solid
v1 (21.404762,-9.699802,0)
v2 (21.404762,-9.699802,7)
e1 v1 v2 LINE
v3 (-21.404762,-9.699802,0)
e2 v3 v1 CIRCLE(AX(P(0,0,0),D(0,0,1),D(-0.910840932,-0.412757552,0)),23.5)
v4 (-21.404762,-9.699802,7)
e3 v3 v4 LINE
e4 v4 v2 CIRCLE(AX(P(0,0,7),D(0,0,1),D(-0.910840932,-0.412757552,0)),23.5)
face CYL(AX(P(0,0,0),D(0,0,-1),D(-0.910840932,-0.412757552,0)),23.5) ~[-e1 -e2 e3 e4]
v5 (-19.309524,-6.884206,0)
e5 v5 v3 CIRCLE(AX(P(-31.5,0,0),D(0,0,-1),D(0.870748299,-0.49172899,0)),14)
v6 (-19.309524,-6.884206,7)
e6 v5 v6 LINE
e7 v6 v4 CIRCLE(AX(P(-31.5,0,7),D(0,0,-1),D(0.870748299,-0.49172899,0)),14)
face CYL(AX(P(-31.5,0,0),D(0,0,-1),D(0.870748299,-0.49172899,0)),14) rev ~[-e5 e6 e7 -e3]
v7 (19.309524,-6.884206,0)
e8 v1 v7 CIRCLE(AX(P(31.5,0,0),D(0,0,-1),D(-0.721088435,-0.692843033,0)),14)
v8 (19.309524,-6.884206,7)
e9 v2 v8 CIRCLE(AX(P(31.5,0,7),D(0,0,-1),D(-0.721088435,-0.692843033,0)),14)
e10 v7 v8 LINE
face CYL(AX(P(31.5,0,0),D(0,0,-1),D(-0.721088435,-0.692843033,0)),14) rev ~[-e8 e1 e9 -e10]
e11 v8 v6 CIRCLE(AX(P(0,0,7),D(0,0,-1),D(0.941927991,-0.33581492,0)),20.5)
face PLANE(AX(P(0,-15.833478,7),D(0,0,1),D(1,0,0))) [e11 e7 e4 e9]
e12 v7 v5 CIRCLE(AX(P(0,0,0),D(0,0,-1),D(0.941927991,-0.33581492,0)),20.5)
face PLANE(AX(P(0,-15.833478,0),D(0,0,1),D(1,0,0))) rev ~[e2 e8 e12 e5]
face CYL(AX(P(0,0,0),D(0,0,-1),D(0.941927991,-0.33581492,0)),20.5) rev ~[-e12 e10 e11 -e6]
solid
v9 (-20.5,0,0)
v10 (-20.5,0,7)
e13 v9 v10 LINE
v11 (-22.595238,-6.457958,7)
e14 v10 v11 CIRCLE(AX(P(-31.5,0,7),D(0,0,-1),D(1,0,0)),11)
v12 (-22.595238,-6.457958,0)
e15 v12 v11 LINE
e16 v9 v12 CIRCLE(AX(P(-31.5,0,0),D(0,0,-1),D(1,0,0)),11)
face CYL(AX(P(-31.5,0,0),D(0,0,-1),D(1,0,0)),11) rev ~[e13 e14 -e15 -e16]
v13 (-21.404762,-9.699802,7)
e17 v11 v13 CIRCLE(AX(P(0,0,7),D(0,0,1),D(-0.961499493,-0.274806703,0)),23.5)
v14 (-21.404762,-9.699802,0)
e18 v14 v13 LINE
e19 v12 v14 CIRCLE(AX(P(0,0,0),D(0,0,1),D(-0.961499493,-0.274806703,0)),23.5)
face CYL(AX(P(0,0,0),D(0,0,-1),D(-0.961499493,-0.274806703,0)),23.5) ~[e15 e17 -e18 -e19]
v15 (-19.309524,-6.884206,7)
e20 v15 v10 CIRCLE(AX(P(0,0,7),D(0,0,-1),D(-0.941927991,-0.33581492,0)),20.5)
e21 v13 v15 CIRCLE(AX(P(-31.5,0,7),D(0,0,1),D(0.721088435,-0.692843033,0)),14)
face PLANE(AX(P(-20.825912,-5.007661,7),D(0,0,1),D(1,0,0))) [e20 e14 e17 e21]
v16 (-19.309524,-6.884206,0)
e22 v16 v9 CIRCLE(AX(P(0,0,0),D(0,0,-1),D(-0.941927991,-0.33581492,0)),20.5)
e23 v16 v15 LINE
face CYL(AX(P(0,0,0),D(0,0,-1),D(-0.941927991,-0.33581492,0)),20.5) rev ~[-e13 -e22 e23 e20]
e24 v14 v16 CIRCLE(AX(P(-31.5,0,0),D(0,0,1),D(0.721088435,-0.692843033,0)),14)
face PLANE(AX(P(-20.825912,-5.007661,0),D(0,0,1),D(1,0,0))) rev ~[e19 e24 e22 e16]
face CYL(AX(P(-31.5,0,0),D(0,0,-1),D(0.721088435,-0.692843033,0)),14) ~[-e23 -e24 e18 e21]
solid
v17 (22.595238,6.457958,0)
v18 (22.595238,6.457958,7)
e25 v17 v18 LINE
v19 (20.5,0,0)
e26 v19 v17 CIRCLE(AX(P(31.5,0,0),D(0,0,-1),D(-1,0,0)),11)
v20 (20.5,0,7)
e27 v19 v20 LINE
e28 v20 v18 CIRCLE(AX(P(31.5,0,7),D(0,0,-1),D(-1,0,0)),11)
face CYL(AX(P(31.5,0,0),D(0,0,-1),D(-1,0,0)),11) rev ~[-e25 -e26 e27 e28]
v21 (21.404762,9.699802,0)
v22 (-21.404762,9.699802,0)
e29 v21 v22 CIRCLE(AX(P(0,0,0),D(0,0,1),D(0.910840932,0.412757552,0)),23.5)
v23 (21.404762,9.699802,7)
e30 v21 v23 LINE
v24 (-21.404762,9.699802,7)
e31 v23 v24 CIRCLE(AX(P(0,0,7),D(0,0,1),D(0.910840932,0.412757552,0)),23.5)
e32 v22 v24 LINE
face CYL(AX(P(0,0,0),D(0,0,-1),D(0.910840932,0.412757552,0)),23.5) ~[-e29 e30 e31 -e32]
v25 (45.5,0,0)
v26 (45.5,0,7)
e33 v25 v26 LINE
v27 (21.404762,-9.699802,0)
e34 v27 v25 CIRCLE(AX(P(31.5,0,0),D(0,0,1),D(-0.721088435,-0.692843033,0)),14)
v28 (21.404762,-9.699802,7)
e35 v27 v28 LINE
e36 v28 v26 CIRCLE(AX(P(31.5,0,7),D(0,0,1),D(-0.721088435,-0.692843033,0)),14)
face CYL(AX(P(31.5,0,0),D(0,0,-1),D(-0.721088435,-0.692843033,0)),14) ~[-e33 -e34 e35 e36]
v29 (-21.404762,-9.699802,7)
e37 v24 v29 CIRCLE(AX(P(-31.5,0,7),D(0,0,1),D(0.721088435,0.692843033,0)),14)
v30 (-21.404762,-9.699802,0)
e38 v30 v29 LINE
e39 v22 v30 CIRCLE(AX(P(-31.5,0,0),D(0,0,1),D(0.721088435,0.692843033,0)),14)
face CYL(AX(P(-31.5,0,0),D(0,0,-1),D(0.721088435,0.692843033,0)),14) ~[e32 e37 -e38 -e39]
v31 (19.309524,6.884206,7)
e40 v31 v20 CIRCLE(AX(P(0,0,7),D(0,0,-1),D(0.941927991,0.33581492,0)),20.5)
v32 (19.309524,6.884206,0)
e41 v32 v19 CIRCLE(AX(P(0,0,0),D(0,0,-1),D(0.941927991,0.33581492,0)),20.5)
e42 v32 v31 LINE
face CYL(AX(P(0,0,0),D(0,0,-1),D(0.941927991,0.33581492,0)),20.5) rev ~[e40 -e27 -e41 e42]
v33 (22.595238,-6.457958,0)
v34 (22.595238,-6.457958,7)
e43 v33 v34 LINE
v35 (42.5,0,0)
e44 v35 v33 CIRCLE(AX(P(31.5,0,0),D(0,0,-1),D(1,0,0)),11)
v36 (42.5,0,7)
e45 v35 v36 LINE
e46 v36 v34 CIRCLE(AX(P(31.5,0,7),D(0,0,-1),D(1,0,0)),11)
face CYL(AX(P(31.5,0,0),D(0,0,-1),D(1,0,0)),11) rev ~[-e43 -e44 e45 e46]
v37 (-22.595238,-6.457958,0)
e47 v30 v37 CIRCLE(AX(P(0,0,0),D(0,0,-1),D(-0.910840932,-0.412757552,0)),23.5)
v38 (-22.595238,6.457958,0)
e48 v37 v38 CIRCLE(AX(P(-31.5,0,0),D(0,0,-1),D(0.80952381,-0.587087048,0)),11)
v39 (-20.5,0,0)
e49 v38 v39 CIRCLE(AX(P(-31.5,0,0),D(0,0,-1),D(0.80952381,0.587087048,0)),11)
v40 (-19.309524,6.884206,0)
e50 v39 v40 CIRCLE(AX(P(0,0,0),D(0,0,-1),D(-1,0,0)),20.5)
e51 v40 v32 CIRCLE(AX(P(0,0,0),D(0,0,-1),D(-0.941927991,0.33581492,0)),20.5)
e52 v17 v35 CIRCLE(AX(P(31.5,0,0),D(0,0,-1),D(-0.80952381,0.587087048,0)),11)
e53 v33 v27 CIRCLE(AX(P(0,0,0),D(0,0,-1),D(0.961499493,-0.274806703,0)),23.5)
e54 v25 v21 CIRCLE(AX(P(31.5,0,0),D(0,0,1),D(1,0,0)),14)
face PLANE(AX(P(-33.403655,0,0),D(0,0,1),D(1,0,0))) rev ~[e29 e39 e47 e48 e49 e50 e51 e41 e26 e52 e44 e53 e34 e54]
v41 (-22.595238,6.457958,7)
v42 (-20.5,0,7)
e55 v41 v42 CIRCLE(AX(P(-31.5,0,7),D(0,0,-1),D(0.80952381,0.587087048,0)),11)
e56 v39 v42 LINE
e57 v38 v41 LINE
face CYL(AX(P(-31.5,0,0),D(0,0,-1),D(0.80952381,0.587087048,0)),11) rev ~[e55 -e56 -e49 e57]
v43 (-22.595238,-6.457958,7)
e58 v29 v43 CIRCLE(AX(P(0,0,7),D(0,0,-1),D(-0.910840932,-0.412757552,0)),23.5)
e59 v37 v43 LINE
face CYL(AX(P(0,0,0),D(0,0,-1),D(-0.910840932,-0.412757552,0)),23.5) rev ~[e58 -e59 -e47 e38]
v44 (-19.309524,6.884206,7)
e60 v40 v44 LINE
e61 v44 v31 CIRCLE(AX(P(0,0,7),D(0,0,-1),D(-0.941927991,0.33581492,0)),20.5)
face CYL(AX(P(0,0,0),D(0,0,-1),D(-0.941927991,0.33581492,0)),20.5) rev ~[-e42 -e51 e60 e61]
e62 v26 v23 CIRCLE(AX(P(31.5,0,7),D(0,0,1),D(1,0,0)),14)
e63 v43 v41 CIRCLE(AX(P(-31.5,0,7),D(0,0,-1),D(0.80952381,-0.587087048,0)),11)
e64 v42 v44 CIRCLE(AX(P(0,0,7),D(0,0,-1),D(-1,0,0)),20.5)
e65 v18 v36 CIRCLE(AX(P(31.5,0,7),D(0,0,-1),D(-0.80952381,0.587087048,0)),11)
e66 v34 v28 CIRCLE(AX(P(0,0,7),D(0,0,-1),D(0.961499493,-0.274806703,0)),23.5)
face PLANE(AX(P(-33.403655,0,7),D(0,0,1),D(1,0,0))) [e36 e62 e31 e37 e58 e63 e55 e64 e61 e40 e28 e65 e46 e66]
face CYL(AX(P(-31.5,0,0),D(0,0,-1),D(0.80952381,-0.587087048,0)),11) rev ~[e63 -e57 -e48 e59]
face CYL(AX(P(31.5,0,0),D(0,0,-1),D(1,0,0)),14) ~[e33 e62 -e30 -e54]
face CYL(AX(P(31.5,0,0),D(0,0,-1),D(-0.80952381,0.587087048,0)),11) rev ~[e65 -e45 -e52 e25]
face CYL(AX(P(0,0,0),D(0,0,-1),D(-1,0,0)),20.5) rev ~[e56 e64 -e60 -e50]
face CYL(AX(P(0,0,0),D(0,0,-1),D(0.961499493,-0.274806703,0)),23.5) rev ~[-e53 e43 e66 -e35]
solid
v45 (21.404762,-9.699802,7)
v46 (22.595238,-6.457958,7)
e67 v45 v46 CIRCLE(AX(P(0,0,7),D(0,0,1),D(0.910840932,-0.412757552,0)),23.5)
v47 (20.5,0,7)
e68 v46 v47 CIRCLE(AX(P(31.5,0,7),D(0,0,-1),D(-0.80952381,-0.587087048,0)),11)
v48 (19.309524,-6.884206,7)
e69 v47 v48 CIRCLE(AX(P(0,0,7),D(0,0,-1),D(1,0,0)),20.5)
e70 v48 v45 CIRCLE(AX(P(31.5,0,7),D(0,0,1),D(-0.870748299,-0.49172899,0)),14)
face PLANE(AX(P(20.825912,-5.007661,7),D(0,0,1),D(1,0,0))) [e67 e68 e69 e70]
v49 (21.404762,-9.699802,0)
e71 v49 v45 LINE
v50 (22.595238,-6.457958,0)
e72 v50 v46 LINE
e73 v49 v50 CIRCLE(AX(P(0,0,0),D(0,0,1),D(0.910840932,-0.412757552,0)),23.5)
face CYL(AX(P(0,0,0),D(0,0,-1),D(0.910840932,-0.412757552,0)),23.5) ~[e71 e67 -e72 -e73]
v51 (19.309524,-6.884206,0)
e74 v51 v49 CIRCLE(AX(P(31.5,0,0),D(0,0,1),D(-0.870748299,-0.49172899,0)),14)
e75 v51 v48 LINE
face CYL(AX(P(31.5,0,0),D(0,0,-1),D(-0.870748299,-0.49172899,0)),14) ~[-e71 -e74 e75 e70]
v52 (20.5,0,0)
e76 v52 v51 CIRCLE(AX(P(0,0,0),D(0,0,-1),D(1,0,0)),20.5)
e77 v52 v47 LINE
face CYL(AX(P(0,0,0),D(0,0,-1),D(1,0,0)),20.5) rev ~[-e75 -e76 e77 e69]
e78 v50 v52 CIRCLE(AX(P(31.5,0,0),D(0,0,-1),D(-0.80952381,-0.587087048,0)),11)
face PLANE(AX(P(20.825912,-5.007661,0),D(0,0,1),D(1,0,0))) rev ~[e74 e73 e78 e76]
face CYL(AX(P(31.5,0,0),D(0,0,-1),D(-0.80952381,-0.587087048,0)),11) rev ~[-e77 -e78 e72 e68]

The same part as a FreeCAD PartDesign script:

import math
import FreeCAD as App
import Part
import Sketcher
Q = App.Units.Quantity

doc = App.newDocument("Part")
body = doc.addObject("PartDesign::Body", "Body")

# Sketch on XY plane
sketch1 = doc.addObject("Sketcher::SketchObject", "Sketch")
body.addObject(sketch1)
sketch1.AttachmentSupport = (doc.XY_Plane, [""])
sketch1.MapMode = "FlatFace"
sketch1.addGeometry([
    Part.ArcOfCircle(Part.Circle(App.Vector(-31.5, 0, 0), App.Vector(0, 0, 1), 14), math.radians(44), math.radians(316)),  # 0
    Part.ArcOfCircle(Part.Circle(App.Vector(0, 0, 0), App.Vector(0, 0, 1), 23.5), math.radians(-164.05), math.radians(-155.62)),  # 1
    Part.ArcOfCircle(Part.Circle(App.Vector(-31.5, 0, 0), App.Vector(0, 0, 1), 11), math.radians(36), math.radians(324)),  # 2
    Part.ArcOfCircle(Part.Circle(App.Vector(-31.5, 0, 0), App.Vector(0, 0, 1), 11), math.radians(0), math.radians(36)),  # 3
    Part.ArcOfCircle(Part.Circle(App.Vector(0, 0, 0), App.Vector(0, 0, 1), 20.5), math.radians(160.38), math.radians(180)),  # 4
    Part.ArcOfCircle(Part.Circle(App.Vector(0, 0, 0), App.Vector(0, 0, 1), 20.5), math.radians(20), math.radians(160)),  # 5
    Part.ArcOfCircle(Part.Circle(App.Vector(0, 0, 0), App.Vector(0, 0, 1), 20.5), math.radians(0), math.radians(19.62)),  # 6
    Part.ArcOfCircle(Part.Circle(App.Vector(31.5, 0, 0), App.Vector(0, 0, 1), 11), math.radians(144), math.radians(180)),  # 7
    Part.ArcOfCircle(Part.Circle(App.Vector(31.5, 0, 0), App.Vector(0, 0, 1), 11), math.radians(0), math.radians(144)),  # 8
    Part.ArcOfCircle(Part.Circle(App.Vector(31.5, 0, 0), App.Vector(0, 0, 1), 11), math.radians(-144), math.radians(0)),  # 9
    Part.ArcOfCircle(Part.Circle(App.Vector(0, 0, 0), App.Vector(0, 0, 1), 23.5), math.radians(-24.38), math.radians(-15.95)),  # 10
    Part.ArcOfCircle(Part.Circle(App.Vector(31.5, 0, 0), App.Vector(0, 0, 1), 14), math.radians(-136), math.radians(0)),  # 11
    Part.ArcOfCircle(Part.Circle(App.Vector(31.5, 0, 0), App.Vector(0, 0, 1), 14), math.radians(0), math.radians(136)),  # 12
    Part.ArcOfCircle(Part.Circle(App.Vector(0, 0, 0), App.Vector(0, 0, 1), 23.5), math.radians(24), math.radians(156)),  # 13
], False)
sketch1.addConstraint([
    Sketcher.Constraint("Coincident", 0, 2, 1, 2),
    Sketcher.Constraint("Coincident", 1, 1, 2, 2),
    Sketcher.Constraint("Tangent", 2, 1, 3, 2),
    Sketcher.Constraint("Tangent", 3, 1, 4, 2),
    Sketcher.Constraint("Tangent", 4, 1, 5, 2),
    Sketcher.Constraint("Tangent", 5, 1, 6, 2),
    Sketcher.Constraint("Tangent", 6, 1, 7, 2),
    Sketcher.Constraint("Tangent", 7, 1, 8, 2),
    Sketcher.Constraint("Tangent", 8, 1, 9, 2),
    Sketcher.Constraint("Coincident", 9, 1, 10, 2),
    Sketcher.Constraint("Coincident", 10, 1, 11, 1),
    Sketcher.Constraint("Tangent", 11, 2, 12, 1),
    Sketcher.Constraint("Coincident", 12, 2, 13, 1),
    Sketcher.Constraint("Coincident", 13, 2, 0, 1),
    Sketcher.Constraint("Coincident", 1, 3, -1, 1),
    Sketcher.Constraint("Coincident", 4, 3, -1, 1),
    Sketcher.Constraint("Coincident", 6, 3, -1, 1),
    Sketcher.Constraint("Coincident", 10, 3, -1, 1),
    Sketcher.Constraint("Coincident", 13, 3, -1, 1),
    Sketcher.Constraint("Coincident", 2, 3, 0, 3),
    Sketcher.Constraint("Coincident", 9, 3, 7, 3),
    Sketcher.Constraint("Coincident", 11, 3, 7, 3),
    Sketcher.Constraint("Equal", 2, 3),
    Sketcher.Constraint("Equal", 3, 7),
    Sketcher.Constraint("Equal", 1, 10),
    Sketcher.Constraint("Equal", 0, 11),
    Sketcher.Constraint("Equal", 11, 12),
    Sketcher.Constraint("Equal", 10, 13),
    Sketcher.Constraint("Symmetric", 1, 1, 7, 1, -1, 1),
    Sketcher.Constraint("Symmetric", 2, 1, 7, 1, -2),
    Sketcher.Constraint("PointOnObject", 8, 1, -1),
    Sketcher.Constraint("PointOnObject", 11, 2, -1),
    Sketcher.Constraint("Horizontal", 4, 1, 5, 1),
    Sketcher.Constraint("Radius", 0, Q("14 mm")),
    Sketcher.Constraint("Radius", 2, Q("11 mm")),
    Sketcher.Constraint("Radius", 1, Q("23.5 mm")),
    Sketcher.Constraint("Radius", 4, Q("20.5 mm")),
    Sketcher.Constraint("DistanceY", 2, 1, 4, 1, Q("0.426248 mm")),
])
pad1 = doc.addObject("PartDesign::Pad", "Pad")
body.addObject(pad1)
pad1.Profile = sketch1
pad1.Length = 7
body2 = doc.addObject("PartDesign::Body", "Body001")

# Sketch on XY plane
sketch2 = doc.addObject("Sketcher::SketchObject", "Sketch001")
body2.addObject(sketch2)
sketch2.AttachmentSupport = (doc.getObject("XY_Plane001"), [""])
sketch2.MapMode = "FlatFace"
sketch2.addGeometry([
    Part.ArcOfCircle(Part.Circle(App.Vector(31.5, 0, 0), App.Vector(0, 0, 1), 14), math.radians(-150.55), math.radians(-136.14)),
    Part.ArcOfCircle(Part.Circle(App.Vector(0, 0, 0), App.Vector(0, 0, 1), 20.5), math.radians(-160), math.radians(-20)),
    Part.ArcOfCircle(Part.Circle(App.Vector(-31.5, 0, 0), App.Vector(0, 0, 1), 14), math.radians(-43.86), math.radians(-29.45)),
    Part.ArcOfCircle(Part.Circle(App.Vector(0, 0, 0), App.Vector(0, 0, 1), 23.5), math.radians(-156), math.radians(-24)),
], False)
sketch2.addConstraint([
    Sketcher.Constraint("Coincident", 0, 1, 1, 2),
    Sketcher.Constraint("Coincident", 1, 1, 2, 2),
    Sketcher.Constraint("Coincident", 2, 1, 3, 1),
    Sketcher.Constraint("Coincident", 3, 2, 0, 2),
    Sketcher.Constraint("Coincident", 1, 3, -1, 1),
    Sketcher.Constraint("Coincident", 3, 3, -1, 1),
    Sketcher.Constraint("Equal", 0, 2),
    Sketcher.Constraint("Symmetric", 0, 3, 2, 3, -1, 1),
    Sketcher.Constraint("PointOnObject", 0, 3, -1),
    Sketcher.Constraint("Radius", 0, Q("14 mm")),
    Sketcher.Constraint("Radius", 1, Q("20.5 mm")),
    Sketcher.Constraint("Radius", 3, Q("23.5 mm")),
    Sketcher.Constraint("DistanceX", 2, 3, 0, 3, Q("63 mm")),
])
pad2 = doc.addObject("PartDesign::Pad", "Pad001")
body2.addObject(pad2)
pad2.Profile = sketch2
pad2.Length = 7
body3 = doc.addObject("PartDesign::Body", "Body002")

# Sketch on XY plane
sketch3 = doc.addObject("Sketcher::SketchObject", "Sketch002")
body3.addObject(sketch3)
sketch3.AttachmentSupport = (doc.getObject("XY_Plane002"), [""])
sketch3.MapMode = "FlatFace"
sketch3.addGeometry([
    Part.ArcOfCircle(Part.Circle(App.Vector(-31.5, 0, 0), App.Vector(0, 0, 1), 14), math.radians(-43.86), math.radians(-29.45)),
    Part.ArcOfCircle(Part.Circle(App.Vector(0, 0, 0), App.Vector(0, 0, 1), 20.5), math.radians(180), math.radians(199.62)),
    Part.ArcOfCircle(Part.Circle(App.Vector(-31.5, 0, 0), App.Vector(0, 0, 1), 11), math.radians(-36), math.radians(0)),
    Part.ArcOfCircle(Part.Circle(App.Vector(0, 0, 0), App.Vector(0, 0, 1), 23.5), math.radians(-164.05), math.radians(-155.62)),
], False)
sketch3.addConstraint([
    Sketcher.Constraint("Coincident", 0, 2, 1, 2),
    Sketcher.Constraint("Tangent", 1, 1, 2, 2),
    Sketcher.Constraint("Coincident", 2, 1, 3, 1),
    Sketcher.Constraint("Coincident", 3, 2, 0, 1),
    Sketcher.Constraint("Coincident", 1, 3, -1, 1),
    Sketcher.Constraint("Coincident", 3, 3, -1, 1),
    Sketcher.Constraint("Coincident", 2, 3, 0, 3),
    Sketcher.Constraint("PointOnObject", 0, 3, -1),
    Sketcher.Constraint("Radius", 0, Q("14 mm")),
    Sketcher.Constraint("Radius", 2, Q("11 mm")),
    Sketcher.Constraint("Radius", 1, Q("20.5 mm")),
    Sketcher.Constraint("Radius", 3, Q("23.5 mm")),
])
pad3 = doc.addObject("PartDesign::Pad", "Pad002")
body3.addObject(pad3)
pad3.Profile = sketch3
pad3.Length = 7
body4 = doc.addObject("PartDesign::Body", "Body003")

# Sketch on XY plane
sketch4 = doc.addObject("Sketcher::SketchObject", "Sketch003")
body4.addObject(sketch4)
sketch4.AttachmentSupport = (doc.getObject("XY_Plane003"), [""])
sketch4.MapMode = "FlatFace"
sketch4.addGeometry([
    Part.ArcOfCircle(Part.Circle(App.Vector(31.5, 0, 0), App.Vector(0, 0, 1), 11), math.radians(180), math.radians(216)),
    Part.ArcOfCircle(Part.Circle(App.Vector(0, 0, 0), App.Vector(0, 0, 1), 20.5), math.radians(-19.62), math.radians(0)),
    Part.ArcOfCircle(Part.Circle(App.Vector(31.5, 0, 0), App.Vector(0, 0, 1), 14), math.radians(-150.55), math.radians(-136.14)),
    Part.ArcOfCircle(Part.Circle(App.Vector(0, 0, 0), App.Vector(0, 0, 1), 23.5), math.radians(-24.38), math.radians(-15.95)),
], False)
sketch4.addConstraint([
    Sketcher.Constraint("Tangent", 0, 1, 1, 2),
    Sketcher.Constraint("Coincident", 1, 1, 2, 1),
    Sketcher.Constraint("Coincident", 2, 2, 3, 1),
    Sketcher.Constraint("Coincident", 3, 2, 0, 2),
    Sketcher.Constraint("Coincident", 1, 3, -1, 1),
    Sketcher.Constraint("Coincident", 3, 3, -1, 1),
    Sketcher.Constraint("Coincident", 2, 3, 0, 3),
    Sketcher.Constraint("PointOnObject", 0, 3, -1),
    Sketcher.Constraint("Radius", 0, Q("11 mm")),
    Sketcher.Constraint("Radius", 2, Q("14 mm")),
    Sketcher.Constraint("Radius", 1, Q("20.5 mm")),
    Sketcher.Constraint("Radius", 3, Q("23.5 mm")),
])
pad4 = doc.addObject("PartDesign::Pad", "Pad003")
body4.addObject(pad4)
pad4.Profile = sketch4
pad4.Length = 7

doc.recompute()
